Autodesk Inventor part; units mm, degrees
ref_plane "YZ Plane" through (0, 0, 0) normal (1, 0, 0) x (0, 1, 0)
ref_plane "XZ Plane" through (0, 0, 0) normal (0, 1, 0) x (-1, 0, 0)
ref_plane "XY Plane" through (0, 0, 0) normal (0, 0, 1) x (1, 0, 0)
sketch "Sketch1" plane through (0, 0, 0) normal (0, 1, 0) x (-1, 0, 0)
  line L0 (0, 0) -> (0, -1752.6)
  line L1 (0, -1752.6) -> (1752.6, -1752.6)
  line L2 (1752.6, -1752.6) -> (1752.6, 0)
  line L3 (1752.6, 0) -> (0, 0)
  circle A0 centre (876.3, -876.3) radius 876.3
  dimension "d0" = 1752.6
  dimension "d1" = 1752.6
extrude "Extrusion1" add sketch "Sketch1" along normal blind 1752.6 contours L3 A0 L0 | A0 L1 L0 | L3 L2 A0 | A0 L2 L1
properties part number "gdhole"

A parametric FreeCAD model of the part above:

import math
import FreeCAD as App
import Part
import Sketcher
Q = App.Units.Quantity

doc = App.newDocument("Part")
body = doc.addObject("PartDesign::Body", "Body")
body.AllowCompound = True

# Sketch on XZ plane
sketch1 = doc.addObject("Sketcher::SketchObject", "Sketch")
body.addObject(sketch1)
sketch1.AttachmentSupport = (doc.XZ_Plane, [""])
sketch1.MapMode = "FlatFace"
sketch1.addGeometry(Part.LineSegment(App.Vector(-876, 0, 0), App.Vector(0, 0, 0)), False)
sketch1.addGeometry(Part.LineSegment(App.Vector(0, 0, 0), App.Vector(0, -876, 0)), False)
sketch1.addGeometry(Part.ArcOfCircle(Part.Circle(App.Vector(-876, -876, 0), App.Vector(0, 0, 1), 876), math.radians(0), math.radians(90)), False)
sketch1.addGeometry(Part.ArcOfCircle(Part.Circle(App.Vector(-876, -876, 0), App.Vector(0, 0, 1), 876), math.radians(-90), math.radians(0)), False)
sketch1.addGeometry(Part.LineSegment(App.Vector(0, -876, 0), App.Vector(0, -1753, 0)), False)
sketch1.addGeometry(Part.LineSegment(App.Vector(0, -1753, 0), App.Vector(-876, -1753, 0)), False)
sketch1.addGeometry(Part.LineSegment(App.Vector(-1753, 0, 0), App.Vector(-876, 0, 0)), False)
sketch1.addGeometry(Part.ArcOfCircle(Part.Circle(App.Vector(-876, -876, 0), App.Vector(0, 0, 1), 876), math.radians(90), math.radians(180)), False)
sketch1.addGeometry(Part.LineSegment(App.Vector(-1753, -876, 0), App.Vector(-1753, 0, 0)), False)
sketch1.addGeometry(Part.ArcOfCircle(Part.Circle(App.Vector(-876, -876, 0), App.Vector(0, 0, 1), 876), math.radians(180), math.radians(270)), False)
sketch1.addGeometry(Part.LineSegment(App.Vector(-876, -1753, 0), App.Vector(-1753, -1753, 0)), False)
sketch1.addGeometry(Part.LineSegment(App.Vector(-1753, -1753, 0), App.Vector(-1753, -876, 0)), False)
sketch1.addConstraint(Sketcher.Constraint("Coincident", 0, 2, 1, 1))
sketch1.addConstraint(Sketcher.Constraint("Tangent", 1, 2, 2, 1))
sketch1.addConstraint(Sketcher.Constraint("Coincident", 2, 2, 0, 1))
sketch1.addConstraint(Sketcher.Constraint("Tangent", 3, 2, 4, 1))
sketch1.addConstraint(Sketcher.Constraint("Coincident", 4, 2, 5, 1))
sketch1.addConstraint(Sketcher.Constraint("Coincident", 5, 2, 3, 1))
sketch1.addConstraint(Sketcher.Constraint("Tangent", 6, 2, 7, 1))
sketch1.addConstraint(Sketcher.Constraint("Coincident", 7, 2, 8, 1))
sketch1.addConstraint(Sketcher.Constraint("Coincident", 8, 2, 6, 1))
sketch1.addConstraint(Sketcher.Constraint("Tangent", 9, 2, 10, 1))
sketch1.addConstraint(Sketcher.Constraint("Coincident", 10, 2, 11, 1))
sketch1.addConstraint(Sketcher.Constraint("Coincident", 11, 2, 9, 1))
sketch1.addConstraint(Sketcher.Constraint("Horizontal", 0))
sketch1.addConstraint(Sketcher.Constraint("Vertical", 1))
sketch1.addConstraint(Sketcher.Constraint("Vertical", 4))
sketch1.addConstraint(Sketcher.Constraint("Horizontal", 5))
sketch1.addConstraint(Sketcher.Constraint("Horizontal", 6))
sketch1.addConstraint(Sketcher.Constraint("Vertical", 8))
sketch1.addConstraint(Sketcher.Constraint("Horizontal", 10))
sketch1.addConstraint(Sketcher.Constraint("Vertical", 11))
sketch1.addConstraint(Sketcher.Constraint("Coincident", 0, 2, -1, 1))
sketch1.addConstraint(Sketcher.Constraint("Coincident", 3, 3, 2, 3))
sketch1.addConstraint(Sketcher.Constraint("Coincident", 7, 3, 2, 3))
sketch1.addConstraint(Sketcher.Constraint("Coincident", 9, 3, 2, 3))
sketch1.addConstraint(Sketcher.Constraint("Equal", 2, 3))
sketch1.addConstraint(Sketcher.Constraint("Equal", 3, 7))
sketch1.addConstraint(Sketcher.Constraint("Equal", 7, 9))
sketch1.addConstraint(Sketcher.Constraint("Vertical", 5, 2, 6, 2))
sketch1.addConstraint(Sketcher.Constraint("Equal", 0, 5))
sketch1.addConstraint(Sketcher.Constraint("Equal", 4, 8))
sketch1.addConstraint(Sketcher.Constraint("Equal", 8, 11))
sketch1.addConstraint(Sketcher.Constraint("Radius", 2, Q("34.5 in")))
pad1 = doc.addObject("PartDesign::Pad", "Pad")
body.addObject(pad1)
pad1.Profile = sketch1
pad1.Length = Q("69 in")
pad1.Reversed = True

doc.recompute()
